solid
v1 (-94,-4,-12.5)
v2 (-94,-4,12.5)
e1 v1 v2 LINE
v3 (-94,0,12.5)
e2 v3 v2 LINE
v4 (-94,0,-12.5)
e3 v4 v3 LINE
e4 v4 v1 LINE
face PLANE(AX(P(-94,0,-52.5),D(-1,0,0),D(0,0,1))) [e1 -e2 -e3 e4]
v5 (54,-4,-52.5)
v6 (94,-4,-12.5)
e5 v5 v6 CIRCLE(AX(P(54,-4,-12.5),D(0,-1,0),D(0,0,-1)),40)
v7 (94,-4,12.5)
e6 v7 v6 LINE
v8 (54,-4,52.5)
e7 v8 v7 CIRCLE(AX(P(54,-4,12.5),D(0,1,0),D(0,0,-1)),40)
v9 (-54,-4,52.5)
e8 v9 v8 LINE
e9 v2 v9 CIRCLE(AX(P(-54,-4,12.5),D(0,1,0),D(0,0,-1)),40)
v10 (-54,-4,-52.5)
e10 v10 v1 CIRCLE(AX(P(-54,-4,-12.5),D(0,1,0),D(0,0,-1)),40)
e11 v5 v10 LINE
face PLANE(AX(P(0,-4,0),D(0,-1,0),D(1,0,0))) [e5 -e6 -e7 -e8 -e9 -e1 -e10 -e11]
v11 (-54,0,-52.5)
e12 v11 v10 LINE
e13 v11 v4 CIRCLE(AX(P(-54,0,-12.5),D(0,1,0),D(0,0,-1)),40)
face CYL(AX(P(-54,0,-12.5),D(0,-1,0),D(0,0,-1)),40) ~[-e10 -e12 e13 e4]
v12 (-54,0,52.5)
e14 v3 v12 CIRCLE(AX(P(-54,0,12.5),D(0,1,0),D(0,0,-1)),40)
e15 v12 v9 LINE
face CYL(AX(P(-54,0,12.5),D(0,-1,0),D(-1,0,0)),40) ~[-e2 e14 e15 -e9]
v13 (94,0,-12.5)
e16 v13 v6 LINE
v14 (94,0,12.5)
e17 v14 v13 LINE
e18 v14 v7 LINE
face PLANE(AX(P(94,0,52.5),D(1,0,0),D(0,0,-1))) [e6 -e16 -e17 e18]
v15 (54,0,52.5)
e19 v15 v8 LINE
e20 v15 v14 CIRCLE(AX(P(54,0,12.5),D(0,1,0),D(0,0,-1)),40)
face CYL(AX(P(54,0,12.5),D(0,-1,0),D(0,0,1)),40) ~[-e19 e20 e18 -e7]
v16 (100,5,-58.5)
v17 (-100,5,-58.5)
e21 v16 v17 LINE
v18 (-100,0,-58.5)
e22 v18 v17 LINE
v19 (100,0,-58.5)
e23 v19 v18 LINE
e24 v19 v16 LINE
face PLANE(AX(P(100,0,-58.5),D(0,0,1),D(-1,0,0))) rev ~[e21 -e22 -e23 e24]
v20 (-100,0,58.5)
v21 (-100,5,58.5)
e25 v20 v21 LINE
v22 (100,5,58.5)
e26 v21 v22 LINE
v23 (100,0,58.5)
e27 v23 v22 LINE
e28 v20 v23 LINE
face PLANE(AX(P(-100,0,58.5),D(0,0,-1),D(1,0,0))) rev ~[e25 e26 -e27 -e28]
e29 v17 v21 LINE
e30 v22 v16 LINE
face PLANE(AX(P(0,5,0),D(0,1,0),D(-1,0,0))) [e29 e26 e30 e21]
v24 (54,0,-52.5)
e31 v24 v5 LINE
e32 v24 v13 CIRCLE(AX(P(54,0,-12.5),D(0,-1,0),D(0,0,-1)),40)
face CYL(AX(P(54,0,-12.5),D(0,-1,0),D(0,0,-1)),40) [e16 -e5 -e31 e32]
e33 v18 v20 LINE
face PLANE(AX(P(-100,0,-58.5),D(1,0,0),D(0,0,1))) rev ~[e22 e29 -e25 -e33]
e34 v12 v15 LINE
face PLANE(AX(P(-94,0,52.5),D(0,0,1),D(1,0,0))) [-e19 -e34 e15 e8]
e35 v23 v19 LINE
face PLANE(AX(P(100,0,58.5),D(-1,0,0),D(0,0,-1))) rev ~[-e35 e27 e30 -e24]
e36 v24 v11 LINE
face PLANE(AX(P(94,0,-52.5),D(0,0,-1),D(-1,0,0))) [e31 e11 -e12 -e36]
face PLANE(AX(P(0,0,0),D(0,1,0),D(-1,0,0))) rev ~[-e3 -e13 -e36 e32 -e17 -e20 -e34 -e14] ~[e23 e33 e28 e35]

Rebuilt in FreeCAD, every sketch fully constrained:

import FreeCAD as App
import Part
import Sketcher
from FreeCAD import Vector
Q = App.Units.Quantity


def edges_at(feature, points):
    """Names of the edges that pass closest to the given points."""
    edges = feature.Shape.Edges
    near = lambda p: min(range(len(edges)), key=lambda i: edges[i].distToShape(Part.Vertex(*p))[0])
    return sorted({f"Edge{near(p) + 1}" for p in points})


def add_polygon(sketch, points):
    """Adds a closed chain of lines whose ends are joined by coincident constraints."""
    first, n = sketch.GeometryCount, len(points)
    for a, b in zip(points, points[1:] + points[:1]):
        sketch.addGeometry(Part.LineSegment(App.Vector(*a, 0), App.Vector(*b, 0)), False)
    for i in range(n):
        sketch.addConstraint(Sketcher.Constraint("Coincident", first + i, 2, first + (i + 1) % n, 1))

doc = App.newDocument("Part")
params = doc.addObject("Spreadsheet::Sheet", "Params")
for row, (alias, value) in enumerate([
    ("sketch1_width", "200 mm"),
    ("sketch1_height", "117 mm"),
    ("pad1_length", "5 mm"),
    ("sketch2_width", "188 mm"),
    ("sketch2_height", "105 mm"),
    ("pad2_length", "4 mm"),
    ("fillet_radius", "40 mm"),
], start=1):
    params.set(f"A{row}", alias)
    params.set(f"B{row}", "=" + value)
    params.setAlias(f"B{row}", alias)

body = doc.addObject("PartDesign::Body", "Body")

sketch1 = body.newObject("Sketcher::SketchObject", "Sketch")
sketch1.AttachmentSupport = (doc.getObject("XZ_Plane"), [""])
sketch1.MapMode = "FlatFace"
add_polygon(sketch1, [(-100, 58.5), (100, 58.5), (100, -58.5), (-100, -58.5)])
sketch1.addConstraint([
    Sketcher.Constraint("Horizontal", 0),
    Sketcher.Constraint("Vertical", 1),
    Sketcher.Constraint("Horizontal", 2),
    Sketcher.Constraint("Vertical", 3),
    Sketcher.Constraint("Symmetric", 0, 2, 2, 2, -1, 1),
    Sketcher.Constraint("DistanceX", 0, 1, 0, 2, Q("200 mm")),
    Sketcher.Constraint("DistanceY", 1, 2, 1, 1, Q("117 mm")),
])
sketch1.setExpression("Constraints[9]", "Params.sketch1_width")
sketch1.setExpression("Constraints[10]", "Params.sketch1_height")
pad1 = body.newObject("PartDesign::Pad", "Pad")
pad1.Profile = sketch1
pad1.setExpression("Length", "Params.pad1_length")
pad1.Reversed = True

sketch2 = body.newObject("Sketcher::SketchObject", "Sketch001")
sketch2.AttachmentSupport = (doc.getObject("XZ_Plane"), [""])
sketch2.MapMode = "FlatFace"
add_polygon(sketch2, [(-94, -52.5), (94, -52.5), (94, 52.5), (-94, 52.5)])
sketch2.addConstraint([
    Sketcher.Constraint("Horizontal", 0),
    Sketcher.Constraint("Vertical", 1),
    Sketcher.Constraint("Horizontal", 2),
    Sketcher.Constraint("Vertical", 3),
    Sketcher.Constraint("Symmetric", 0, 2, 2, 2, -1, 1),
    Sketcher.Constraint("DistanceX", 0, 1, 0, 2, Q("188 mm")),
    Sketcher.Constraint("DistanceY", 1, 1, 1, 2, Q("105 mm")),
])
sketch2.setExpression("Constraints[9]", "Params.sketch2_width")
sketch2.setExpression("Constraints[10]", "Params.sketch2_height")
pad2 = body.newObject("PartDesign::Pad", "Pad001")
pad2.Profile = sketch2
pad2.setExpression("Length", "Params.pad2_length")
doc.recompute()

fillet = body.newObject("PartDesign::Fillet", "Fillet")
fillet.Base = (pad2, edges_at(pad2, [
    (94, -2, 52.5),
    (-94, -2, 52.5),
    (-94, -2, -52.5),
    (94, -2, -52.5),
]))
fillet.setExpression("Radius", "Params.fillet_radius")

doc.recompute()
